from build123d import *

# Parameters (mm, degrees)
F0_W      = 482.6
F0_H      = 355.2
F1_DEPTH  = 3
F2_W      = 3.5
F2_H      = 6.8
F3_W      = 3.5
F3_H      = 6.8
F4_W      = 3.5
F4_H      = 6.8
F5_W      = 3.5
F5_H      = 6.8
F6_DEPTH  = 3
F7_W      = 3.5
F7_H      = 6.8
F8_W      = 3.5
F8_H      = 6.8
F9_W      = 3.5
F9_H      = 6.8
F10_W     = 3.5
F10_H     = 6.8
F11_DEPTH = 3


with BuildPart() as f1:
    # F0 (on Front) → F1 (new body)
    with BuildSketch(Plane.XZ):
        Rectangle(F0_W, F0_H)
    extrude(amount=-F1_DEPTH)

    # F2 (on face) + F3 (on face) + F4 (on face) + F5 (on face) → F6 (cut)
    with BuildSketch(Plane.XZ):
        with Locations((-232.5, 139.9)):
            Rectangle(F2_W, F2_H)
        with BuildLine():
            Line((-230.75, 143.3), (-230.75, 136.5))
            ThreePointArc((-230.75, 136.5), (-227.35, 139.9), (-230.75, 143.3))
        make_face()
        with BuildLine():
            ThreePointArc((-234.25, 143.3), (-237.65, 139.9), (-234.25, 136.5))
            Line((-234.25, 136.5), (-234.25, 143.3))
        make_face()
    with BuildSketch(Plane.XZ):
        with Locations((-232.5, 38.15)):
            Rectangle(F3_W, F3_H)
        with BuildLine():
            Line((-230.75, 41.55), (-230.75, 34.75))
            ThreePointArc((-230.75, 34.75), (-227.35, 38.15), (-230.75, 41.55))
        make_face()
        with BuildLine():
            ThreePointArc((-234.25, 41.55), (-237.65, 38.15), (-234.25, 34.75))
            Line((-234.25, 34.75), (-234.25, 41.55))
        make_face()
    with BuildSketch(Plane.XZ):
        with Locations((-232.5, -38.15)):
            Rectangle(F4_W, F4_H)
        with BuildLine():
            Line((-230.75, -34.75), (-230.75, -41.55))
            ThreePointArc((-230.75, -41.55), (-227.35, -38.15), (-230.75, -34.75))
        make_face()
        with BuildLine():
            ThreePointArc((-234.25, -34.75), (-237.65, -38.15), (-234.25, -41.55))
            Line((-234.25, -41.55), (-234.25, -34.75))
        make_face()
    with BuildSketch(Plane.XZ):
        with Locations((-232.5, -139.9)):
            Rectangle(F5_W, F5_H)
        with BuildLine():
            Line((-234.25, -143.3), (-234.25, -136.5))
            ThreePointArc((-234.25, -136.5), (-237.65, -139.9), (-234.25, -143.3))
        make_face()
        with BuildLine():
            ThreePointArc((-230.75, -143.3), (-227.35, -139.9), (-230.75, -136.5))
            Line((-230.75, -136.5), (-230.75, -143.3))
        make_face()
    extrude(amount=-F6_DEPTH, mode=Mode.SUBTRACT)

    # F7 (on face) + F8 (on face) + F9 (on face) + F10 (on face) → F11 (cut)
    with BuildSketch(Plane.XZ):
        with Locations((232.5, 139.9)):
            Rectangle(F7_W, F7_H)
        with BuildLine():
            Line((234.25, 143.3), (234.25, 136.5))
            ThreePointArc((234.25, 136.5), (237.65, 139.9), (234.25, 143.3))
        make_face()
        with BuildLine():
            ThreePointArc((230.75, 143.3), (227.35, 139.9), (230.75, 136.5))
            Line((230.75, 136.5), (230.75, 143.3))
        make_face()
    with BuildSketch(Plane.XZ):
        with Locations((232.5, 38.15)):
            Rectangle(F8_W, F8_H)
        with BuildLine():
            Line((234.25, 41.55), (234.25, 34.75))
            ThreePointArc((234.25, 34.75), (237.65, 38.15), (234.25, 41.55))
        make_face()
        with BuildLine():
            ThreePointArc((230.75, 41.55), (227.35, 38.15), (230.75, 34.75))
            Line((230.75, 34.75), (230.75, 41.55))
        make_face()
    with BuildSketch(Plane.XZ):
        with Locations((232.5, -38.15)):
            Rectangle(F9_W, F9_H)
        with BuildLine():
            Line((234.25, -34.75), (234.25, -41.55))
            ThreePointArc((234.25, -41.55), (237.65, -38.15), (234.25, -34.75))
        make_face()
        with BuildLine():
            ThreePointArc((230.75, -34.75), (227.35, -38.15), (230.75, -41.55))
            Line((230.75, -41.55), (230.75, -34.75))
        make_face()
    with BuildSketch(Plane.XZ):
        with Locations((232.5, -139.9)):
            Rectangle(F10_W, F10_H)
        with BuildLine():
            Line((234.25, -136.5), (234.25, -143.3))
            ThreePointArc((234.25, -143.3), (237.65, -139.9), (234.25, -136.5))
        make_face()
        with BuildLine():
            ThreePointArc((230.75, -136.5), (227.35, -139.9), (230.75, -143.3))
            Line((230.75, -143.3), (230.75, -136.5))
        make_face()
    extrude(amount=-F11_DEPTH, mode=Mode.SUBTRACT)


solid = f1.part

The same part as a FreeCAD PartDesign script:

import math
import FreeCAD as App
import Part
import Sketcher
from FreeCAD import Vector
Q = App.Units.Quantity


def add_polygon(sketch, points):
    """Adds a closed chain of lines whose ends are joined by coincident constraints."""
    first, n = sketch.GeometryCount, len(points)
    for a, b in zip(points, points[1:] + points[:1]):
        sketch.addGeometry(Part.LineSegment(App.Vector(*a, 0), App.Vector(*b, 0)), False)
    for i in range(n):
        sketch.addConstraint(Sketcher.Constraint("Coincident", first + i, 2, first + (i + 1) % n, 1))

doc = App.newDocument("Part")
body = doc.addObject("PartDesign::Body", "Body")

# Sketch on XZ plane
sketch1 = body.newObject("Sketcher::SketchObject", "Sketch")
sketch1.AttachmentSupport = (doc.getObject("XZ_Plane"), [""])
sketch1.MapMode = "FlatFace"
add_polygon(sketch1, [(-241.3, 177.6), (-241.3, -177.6), (241.3, -177.6), (241.3, 177.6)])  # lines 0-3
sketch1.addConstraint([
    Sketcher.Constraint("Vertical", 0),
    Sketcher.Constraint("Horizontal", 1),
    Sketcher.Constraint("Vertical", 2),
    Sketcher.Constraint("Horizontal", 3),
    Sketcher.Constraint("Symmetric", 0, 2, 2, 2, -1, 1),
    Sketcher.Constraint("DistanceX", 1, 1, 1, 2, Q("482.6 mm")),
    Sketcher.Constraint("DistanceY", 0, 2, 0, 1, Q("355.2 mm")),
])
pad1 = body.newObject("PartDesign::Pad", "Pad")
pad1.Profile = sketch1
pad1.Length = 3
pad1.Reversed = True

# Sketch on XZ plane
sketch2 = body.newObject("Sketcher::SketchObject", "Sketch001")
sketch2.AttachmentSupport = (doc.getObject("XZ_Plane"), [""])
sketch2.MapMode = "FlatFace"
sketch2.addGeometry([
    Part.LineSegment(Vector(-234.25, 136.5, 0), Vector(-230.75, 136.5, 0)),  # 0
    Part.ArcOfCircle(Part.Circle(Vector(-230.75, 139.9, 0), Vector(0, 0, 1), 3.4), math.radians(-90), math.radians(90)),  # 1
    Part.LineSegment(Vector(-230.75, 143.3, 0), Vector(-234.25, 143.3, 0)),  # 2
    Part.ArcOfCircle(Part.Circle(Vector(-234.25, 139.9, 0), Vector(0, 0, 1), 3.4), math.radians(90), math.radians(270)),  # 3
    Part.LineSegment(Vector(-234.25, 34.75, 0), Vector(-230.75, 34.75, 0)),  # 4
    Part.ArcOfCircle(Part.Circle(Vector(-230.75, 38.15, 0), Vector(0, 0, 1), 3.4), math.radians(-90), math.radians(90)),  # 5
    Part.LineSegment(Vector(-230.75, 41.55, 0), Vector(-234.25, 41.55, 0)),  # 6
    Part.ArcOfCircle(Part.Circle(Vector(-234.25, 38.15, 0), Vector(0, 0, 1), 3.4), math.radians(90), math.radians(270)),  # 7
    Part.LineSegment(Vector(-234.25, -41.55, 0), Vector(-230.75, -41.55, 0)),  # 8
    Part.ArcOfCircle(Part.Circle(Vector(-230.75, -38.15, 0), Vector(0, 0, 1), 3.4), math.radians(-90), math.radians(90)),  # 9
    Part.LineSegment(Vector(-230.75, -34.75, 0), Vector(-234.25, -34.75, 0)),  # 10
    Part.ArcOfCircle(Part.Circle(Vector(-234.25, -38.15, 0), Vector(0, 0, 1), 3.4), math.radians(90), math.radians(270)),  # 11
    Part.LineSegment(Vector(-234.25, -143.3, 0), Vector(-230.75, -143.3, 0)),  # 12
    Part.ArcOfCircle(Part.Circle(Vector(-230.75, -139.9, 0), Vector(0, 0, 1), 3.4), math.radians(-90), math.radians(90)),  # 13
    Part.LineSegment(Vector(-230.75, -136.5, 0), Vector(-234.25, -136.5, 0)),  # 14
    Part.ArcOfCircle(Part.Circle(Vector(-234.25, -139.9, 0), Vector(0, 0, 1), 3.4), math.radians(90), math.radians(270)),  # 15
], False)
sketch2.addConstraint([
    Sketcher.Constraint("Tangent", 0, 2, 1, 1),
    Sketcher.Constraint("Tangent", 1, 2, 2, 1),
    Sketcher.Constraint("Tangent", 2, 2, 3, 1),
    Sketcher.Constraint("Tangent", 3, 2, 0, 1),
    Sketcher.Constraint("Tangent", 4, 2, 5, 1),
    Sketcher.Constraint("Tangent", 5, 2, 6, 1),
    Sketcher.Constraint("Tangent", 6, 2, 7, 1),
    Sketcher.Constraint("Tangent", 7, 2, 4, 1),
    Sketcher.Constraint("Tangent", 8, 2, 9, 1),
    Sketcher.Constraint("Tangent", 9, 2, 10, 1),
    Sketcher.Constraint("Tangent", 10, 2, 11, 1),
    Sketcher.Constraint("Tangent", 11, 2, 8, 1),
    Sketcher.Constraint("Tangent", 12, 2, 13, 1),
    Sketcher.Constraint("Tangent", 13, 2, 14, 1),
    Sketcher.Constraint("Tangent", 14, 2, 15, 1),
    Sketcher.Constraint("Tangent", 15, 2, 12, 1),
    Sketcher.Constraint("Horizontal", 0),
    Sketcher.Constraint("Horizontal", 2),
    Sketcher.Constraint("Horizontal", 4),
    Sketcher.Constraint("Horizontal", 6),
    Sketcher.Constraint("Horizontal", 8),
    Sketcher.Constraint("Horizontal", 10),
    Sketcher.Constraint("Horizontal", 12),
    Sketcher.Constraint("Horizontal", 14),
    Sketcher.Constraint("Equal", 3, 5),
    Sketcher.Constraint("Equal", 7, 9),
    Sketcher.Constraint("Equal", 11, 13),
    Sketcher.Constraint("Symmetric", 5, 3, 9, 3, -1),
    Sketcher.Constraint("Symmetric", 1, 3, 13, 3, -1),
    Sketcher.Constraint("Vertical", 1, 3, 5, 3),
    Sketcher.Constraint("Vertical", 3, 3, 7, 3),
    Sketcher.Constraint("Vertical", 7, 3, 11, 3),
    Sketcher.Constraint("Vertical", 11, 3, 15, 3),
    Sketcher.Constraint("Radius", 1, Q("3.4 mm")),
    Sketcher.Constraint("DistanceX", 0, 1, 0, 2, Q("3.5 mm")),
    Sketcher.Constraint("DistanceY", -1, 1, 1, 3, Q("139.9 mm")),
    Sketcher.Constraint("DistanceY", 9, 3, 5, 3, Q("76.3 mm")),
    Sketcher.Constraint("DistanceX", 1, 3, -1, 1, Q("230.75 mm")),
])
pocket1 = body.newObject("PartDesign::Pocket", "Pocket")
pocket1.Profile = sketch2
pocket1.Length = 3

# Sketch on XZ plane
sketch3 = body.newObject("Sketcher::SketchObject", "Sketch002")
sketch3.AttachmentSupport = (doc.getObject("XZ_Plane"), [""])
sketch3.MapMode = "FlatFace"
sketch3.addGeometry([
    Part.LineSegment(Vector(230.75, 136.5, 0), Vector(234.25, 136.5, 0)),  # 0
    Part.ArcOfCircle(Part.Circle(Vector(234.25, 139.9, 0), Vector(0, 0, 1), 3.4), math.radians(-90), math.radians(90)),  # 1
    Part.LineSegment(Vector(234.25, 143.3, 0), Vector(230.75, 143.3, 0)),  # 2
    Part.ArcOfCircle(Part.Circle(Vector(230.75, 139.9, 0), Vector(0, 0, 1), 3.4), math.radians(90), math.radians(270)),  # 3
    Part.LineSegment(Vector(230.75, 34.75, 0), Vector(234.25, 34.75, 0)),  # 4
    Part.ArcOfCircle(Part.Circle(Vector(234.25, 38.15, 0), Vector(0, 0, 1), 3.4), math.radians(-90), math.radians(90)),  # 5
    Part.LineSegment(Vector(234.25, 41.55, 0), Vector(230.75, 41.55, 0)),  # 6
    Part.ArcOfCircle(Part.Circle(Vector(230.75, 38.15, 0), Vector(0, 0, 1), 3.4), math.radians(90), math.radians(270)),  # 7
    Part.LineSegment(Vector(230.75, -41.55, 0), Vector(234.25, -41.55, 0)),  # 8
    Part.ArcOfCircle(Part.Circle(Vector(234.25, -38.15, 0), Vector(0, 0, 1), 3.4), math.radians(-90), math.radians(90)),  # 9
    Part.LineSegment(Vector(234.25, -34.75, 0), Vector(230.75, -34.75, 0)),  # 10
    Part.ArcOfCircle(Part.Circle(Vector(230.75, -38.15, 0), Vector(0, 0, 1), 3.4), math.radians(90), math.radians(270)),  # 11
    Part.LineSegment(Vector(230.75, -143.3, 0), Vector(234.25, -143.3, 0)),  # 12
    Part.ArcOfCircle(Part.Circle(Vector(234.25, -139.9, 0), Vector(0, 0, 1), 3.4), math.radians(-90), math.radians(90)),  # 13
    Part.LineSegment(Vector(234.25, -136.5, 0), Vector(230.75, -136.5, 0)),  # 14
    Part.ArcOfCircle(Part.Circle(Vector(230.75, -139.9, 0), Vector(0, 0, 1), 3.4), math.radians(90), math.radians(270)),  # 15
], False)
sketch3.addConstraint([
    Sketcher.Constraint("Tangent", 0, 2, 1, 1),
    Sketcher.Constraint("Tangent", 1, 2, 2, 1),
    Sketcher.Constraint("Tangent", 2, 2, 3, 1),
    Sketcher.Constraint("Tangent", 3, 2, 0, 1),
    Sketcher.Constraint("Tangent", 4, 2, 5, 1),
    Sketcher.Constraint("Tangent", 5, 2, 6, 1),
    Sketcher.Constraint("Tangent", 6, 2, 7, 1),
    Sketcher.Constraint("Tangent", 7, 2, 4, 1),
    Sketcher.Constraint("Tangent", 8, 2, 9, 1),
    Sketcher.Constraint("Tangent", 9, 2, 10, 1),
    Sketcher.Constraint("Tangent", 10, 2, 11, 1),
    Sketcher.Constraint("Tangent", 11, 2, 8, 1),
    Sketcher.Constraint("Tangent", 12, 2, 13, 1),
    Sketcher.Constraint("Tangent", 13, 2, 14, 1),
    Sketcher.Constraint("Tangent", 14, 2, 15, 1),
    Sketcher.Constraint("Tangent", 15, 2, 12, 1),
    Sketcher.Constraint("Horizontal", 0),
    Sketcher.Constraint("Horizontal", 2),
    Sketcher.Constraint("Horizontal", 4),
    Sketcher.Constraint("Horizontal", 6),
    Sketcher.Constraint("Horizontal", 8),
    Sketcher.Constraint("Horizontal", 10),
    Sketcher.Constraint("Horizontal", 12),
    Sketcher.Constraint("Horizontal", 14),
    Sketcher.Constraint("Equal", 3, 5),
    Sketcher.Constraint("Equal", 7, 9),
    Sketcher.Constraint("Equal", 11, 13),
    Sketcher.Constraint("Symmetric", 5, 3, 9, 3, -1),
    Sketcher.Constraint("Symmetric", 1, 3, 13, 3, -1),
    Sketcher.Constraint("Vertical", 1, 3, 5, 3),
    Sketcher.Constraint("Vertical", 3, 3, 7, 3),
    Sketcher.Constraint("Vertical", 7, 3, 11, 3),
    Sketcher.Constraint("Vertical", 11, 3, 15, 3),
    Sketcher.Constraint("Radius", 1, Q("3.4 mm")),
    Sketcher.Constraint("DistanceX", 0, 1, 0, 2, Q("3.5 mm")),
    Sketcher.Constraint("DistanceY", -1, 1, 1, 3, Q("139.9 mm")),
    Sketcher.Constraint("DistanceY", 9, 3, 5, 3, Q("76.3 mm")),
    Sketcher.Constraint("DistanceX", -1, 1, 1, 3, Q("234.25 mm")),
])
pocket2 = body.newObject("PartDesign::Pocket", "Pocket001")
pocket2.Profile = sketch3
pocket2.Length = 3

doc.recompute()
